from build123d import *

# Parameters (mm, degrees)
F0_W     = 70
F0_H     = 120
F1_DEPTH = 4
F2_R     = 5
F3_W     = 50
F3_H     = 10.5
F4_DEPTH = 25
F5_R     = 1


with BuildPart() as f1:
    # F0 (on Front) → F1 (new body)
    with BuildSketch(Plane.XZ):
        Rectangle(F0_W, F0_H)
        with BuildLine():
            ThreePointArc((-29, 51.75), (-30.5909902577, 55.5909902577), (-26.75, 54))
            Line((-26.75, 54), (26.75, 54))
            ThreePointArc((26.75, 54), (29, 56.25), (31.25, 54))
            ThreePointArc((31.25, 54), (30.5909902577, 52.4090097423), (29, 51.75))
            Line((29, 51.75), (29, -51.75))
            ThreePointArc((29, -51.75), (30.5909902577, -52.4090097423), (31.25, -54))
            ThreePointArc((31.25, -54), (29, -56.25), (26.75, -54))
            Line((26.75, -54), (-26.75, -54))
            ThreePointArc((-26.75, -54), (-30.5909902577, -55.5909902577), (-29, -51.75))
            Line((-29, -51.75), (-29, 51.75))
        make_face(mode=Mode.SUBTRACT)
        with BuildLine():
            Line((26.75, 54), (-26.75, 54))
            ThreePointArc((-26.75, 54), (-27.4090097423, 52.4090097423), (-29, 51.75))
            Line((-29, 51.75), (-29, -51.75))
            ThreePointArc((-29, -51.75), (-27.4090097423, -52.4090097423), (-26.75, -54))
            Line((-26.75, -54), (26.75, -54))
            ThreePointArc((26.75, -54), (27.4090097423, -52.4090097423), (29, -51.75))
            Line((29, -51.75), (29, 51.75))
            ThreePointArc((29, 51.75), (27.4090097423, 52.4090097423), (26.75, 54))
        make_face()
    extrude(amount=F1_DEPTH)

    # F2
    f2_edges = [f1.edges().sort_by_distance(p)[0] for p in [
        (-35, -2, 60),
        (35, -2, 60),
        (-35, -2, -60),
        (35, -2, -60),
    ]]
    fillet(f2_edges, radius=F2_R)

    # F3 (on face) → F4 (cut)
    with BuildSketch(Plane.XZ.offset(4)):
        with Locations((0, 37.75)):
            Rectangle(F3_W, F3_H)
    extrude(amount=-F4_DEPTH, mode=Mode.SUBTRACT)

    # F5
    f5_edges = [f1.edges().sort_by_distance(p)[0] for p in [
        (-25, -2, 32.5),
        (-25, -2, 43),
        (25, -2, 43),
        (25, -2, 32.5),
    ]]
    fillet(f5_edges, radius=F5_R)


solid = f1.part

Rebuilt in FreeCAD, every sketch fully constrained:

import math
import FreeCAD as App
import Part
import Sketcher
Q = App.Units.Quantity


def edges_at(feature, points):
    """Names of the edges that pass closest to the given points."""
    edges = feature.Shape.Edges
    near = lambda p: min(range(len(edges)), key=lambda i: edges[i].distToShape(Part.Vertex(*p))[0])
    return sorted({f"Edge{near(p) + 1}" for p in points})

doc = App.newDocument("Part")
body = doc.addObject("PartDesign::Body", "Body")

# Sketch on XZ plane
sketch1 = doc.addObject("Sketcher::SketchObject", "Sketch")
body.addObject(sketch1)
sketch1.AttachmentSupport = (doc.XZ_Plane, [""])
sketch1.MapMode = "FlatFace"
sketch1.addGeometry(Part.LineSegment(App.Vector(-35, 60, 0), App.Vector(-35, -60, 0)), False)
sketch1.addGeometry(Part.LineSegment(App.Vector(-35, -60, 0), App.Vector(35, -60, 0)), False)
sketch1.addGeometry(Part.LineSegment(App.Vector(35, -60, 0), App.Vector(35, 60, 0)), False)
sketch1.addGeometry(Part.LineSegment(App.Vector(35, 60, 0), App.Vector(-35, 60, 0)), False)
sketch1.addGeometry(Part.ArcOfCircle(Part.Circle(App.Vector(-29, -54, 0), App.Vector(0, 0, 1), 2.2), math.radians(90), math.radians(360)), False)
sketch1.addGeometry(Part.ArcOfCircle(Part.Circle(App.Vector(-29, -54, 0), App.Vector(0, 0, 1), 2.2), math.radians(0), math.radians(90)), False)
sketch1.addGeometry(Part.ArcOfCircle(Part.Circle(App.Vector(29, -54, 0), App.Vector(0, 0, 1), 2.2), math.radians(180), math.radians(360)), False)
sketch1.addGeometry(Part.ArcOfCircle(Part.Circle(App.Vector(29, -54, 0), App.Vector(0, 0, 1), 2.2), math.radians(90), math.radians(180)), False)
sketch1.addGeometry(Part.ArcOfCircle(Part.Circle(App.Vector(29, -54, 0), App.Vector(0, 0, 1), 2.2), math.radians(0), math.radians(90)), False)
sketch1.addGeometry(Part.ArcOfCircle(Part.Circle(App.Vector(29, 54, 0), App.Vector(0, 0, 1), 2.2), math.radians(-90), math.radians(0)), False)
sketch1.addGeometry(Part.ArcOfCircle(Part.Circle(App.Vector(29, 54, 0), App.Vector(0, 0, 1), 2.2), math.radians(180), math.radians(270)), False)
sketch1.addGeometry(Part.ArcOfCircle(Part.Circle(App.Vector(29, 54, 0), App.Vector(0, 0, 1), 2.2), math.radians(0), math.radians(180)), False)
sketch1.addGeometry(Part.ArcOfCircle(Part.Circle(App.Vector(-29, 54, 0), App.Vector(0, 0, 1), 2.2), math.radians(0), math.radians(270)), False)
sketch1.addGeometry(Part.ArcOfCircle(Part.Circle(App.Vector(-29, 54, 0), App.Vector(0, 0, 1), 2.2), math.radians(-90), math.radians(0)), False)
sketch1.addConstraint(Sketcher.Constraint("Coincident", 0, 2, 1, 1))
sketch1.addConstraint(Sketcher.Constraint("Coincident", 1, 2, 2, 1))
sketch1.addConstraint(Sketcher.Constraint("Coincident", 2, 2, 3, 1))
sketch1.addConstraint(Sketcher.Constraint("Coincident", 3, 2, 0, 1))
sketch1.addConstraint(Sketcher.Constraint("Tangent", 4, 1, 5, 2))
sketch1.addConstraint(Sketcher.Constraint("Coincident", 5, 1, 4, 2))
sketch1.addConstraint(Sketcher.Constraint("Tangent", 6, 1, 7, 2))
sketch1.addConstraint(Sketcher.Constraint("Tangent", 7, 1, 8, 2))
sketch1.addConstraint(Sketcher.Constraint("Tangent", 8, 1, 6, 2))
sketch1.addConstraint(Sketcher.Constraint("Tangent", 9, 1, 10, 2))
sketch1.addConstraint(Sketcher.Constraint("Tangent", 10, 1, 11, 2))
sketch1.addConstraint(Sketcher.Constraint("Tangent", 11, 1, 9, 2))
sketch1.addConstraint(Sketcher.Constraint("Tangent", 12, 1, 13, 2))
sketch1.addConstraint(Sketcher.Constraint("Coincident", 13, 1, 12, 2))
sketch1.addConstraint(Sketcher.Constraint("Vertical", 0))
sketch1.addConstraint(Sketcher.Constraint("Horizontal", 1))
sketch1.addConstraint(Sketcher.Constraint("Vertical", 2))
sketch1.addConstraint(Sketcher.Constraint("Horizontal", 3))
sketch1.addConstraint(Sketcher.Constraint("Equal", 5, 6))
sketch1.addConstraint(Sketcher.Constraint("Equal", 8, 9))
sketch1.addConstraint(Sketcher.Constraint("Equal", 11, 12))
sketch1.addConstraint(Sketcher.Constraint("Symmetric", 4, 3, 9, 3, -1, 1))
sketch1.addConstraint(Sketcher.Constraint("Symmetric", 6, 3, 12, 3, -1, 1))
sketch1.addConstraint(Sketcher.Constraint("Symmetric", 0, 2, 2, 2, -1, 1))
sketch1.addConstraint(Sketcher.Constraint("Symmetric", 4, 3, 6, 3, -2))
sketch1.addConstraint(Sketcher.Constraint("Horizontal", 8, 3, 5, 1))
sketch1.addConstraint(Sketcher.Constraint("Horizontal", 5, 1, 6, 1))
sketch1.addConstraint(Sketcher.Constraint("Horizontal", 6, 1, 8, 1))
sketch1.addConstraint(Sketcher.Constraint("Horizontal", 13, 3, 10, 1))
sketch1.addConstraint(Sketcher.Constraint("Horizontal", 10, 1, 11, 1))
sketch1.addConstraint(Sketcher.Constraint("Horizontal", 11, 1, 12, 1))
sketch1.addConstraint(Sketcher.Constraint("Vertical", 13, 3, 4, 1))
sketch1.addConstraint(Sketcher.Constraint("Vertical", 11, 3, 7, 1))
sketch1.addConstraint(Sketcher.Constraint("Vertical", 7, 1, 9, 1))
sketch1.addConstraint(Sketcher.Constraint("Vertical", 4, 1, 13, 1))
sketch1.addConstraint(Sketcher.Constraint("DistanceX", 1, 1, 1, 2, Q("70 mm")))
sketch1.addConstraint(Sketcher.Constraint("DistanceY", 0, 2, 0, 1, Q("120 mm")))
sketch1.addConstraint(Sketcher.Constraint("Radius", 4, Q("2.25 mm")))
sketch1.addConstraint(Sketcher.Constraint("DistanceX", 4, 3, -1, 1, Q("29 mm")))
sketch1.addConstraint(Sketcher.Constraint("DistanceY", 4, 3, -1, 1, Q("54 mm")))
pad1 = doc.addObject("PartDesign::Pad", "Pad")
body.addObject(pad1)
pad1.Profile = sketch1
pad1.Length = 4
doc.recompute()

fillet = doc.addObject("PartDesign::Fillet", "Fillet")
body.addObject(fillet)
fillet.Base = (pad1, edges_at(pad1, [
    (-35, -2, 60),
    (35, -2, 60),
    (-35, -2, -60),
    (35, -2, -60),
]))
fillet.Radius = 5

# Sketch on XZ plane
sketch2 = doc.addObject("Sketcher::SketchObject", "Sketch001")
body.addObject(sketch2)
sketch2.AttachmentSupport = (doc.XZ_Plane, [""])
sketch2.MapMode = "FlatFace"
sketch2.AttachmentOffset = App.Placement(App.Vector(0, 0, 4), App.Rotation())
sketch2.addGeometry(Part.LineSegment(App.Vector(-25, 43, 0), App.Vector(-25, 32, 0)), False)
sketch2.addGeometry(Part.LineSegment(App.Vector(-25, 32, 0), App.Vector(25, 32, 0)), False)
sketch2.addGeometry(Part.LineSegment(App.Vector(25, 32, 0), App.Vector(25, 43, 0)), False)
sketch2.addGeometry(Part.LineSegment(App.Vector(25, 43, 0), App.Vector(-25, 43, 0)), False)
sketch2.addConstraint(Sketcher.Constraint("Coincident", 0, 2, 1, 1))
sketch2.addConstraint(Sketcher.Constraint("Coincident", 1, 2, 2, 1))
sketch2.addConstraint(Sketcher.Constraint("Coincident", 2, 2, 3, 1))
sketch2.addConstraint(Sketcher.Constraint("Coincident", 3, 2, 0, 1))
sketch2.addConstraint(Sketcher.Constraint("Vertical", 0))
sketch2.addConstraint(Sketcher.Constraint("Horizontal", 1))
sketch2.addConstraint(Sketcher.Constraint("Vertical", 2))
sketch2.addConstraint(Sketcher.Constraint("Horizontal", 3))
sketch2.addConstraint(Sketcher.Constraint("DistanceX", 1, 1, 1, 2, Q("50 mm")))
sketch2.addConstraint(Sketcher.Constraint("DistanceY", 0, 2, 0, 1, Q("10.5 mm")))
sketch2.addConstraint(Sketcher.Constraint("DistanceX", 0, 2, -1, 1, Q("25 mm")))
sketch2.addConstraint(Sketcher.Constraint("DistanceY", -1, 1, 2, 2, Q("43 mm")))
pocket1 = doc.addObject("PartDesign::Pocket", "Pocket")
body.addObject(pocket1)
pocket1.Profile = sketch2
pocket1.Length = 25
doc.recompute()

fillet2 = doc.addObject("PartDesign::Fillet", "Fillet001")
body.addObject(fillet2)
fillet2.Base = (pocket1, edges_at(pocket1, [
    (-25, -2, 32.5),
    (-25, -2, 43),
    (25, -2, 43),
    (25, -2, 32.5),
]))
fillet2.Radius = 1

doc.recompute()
